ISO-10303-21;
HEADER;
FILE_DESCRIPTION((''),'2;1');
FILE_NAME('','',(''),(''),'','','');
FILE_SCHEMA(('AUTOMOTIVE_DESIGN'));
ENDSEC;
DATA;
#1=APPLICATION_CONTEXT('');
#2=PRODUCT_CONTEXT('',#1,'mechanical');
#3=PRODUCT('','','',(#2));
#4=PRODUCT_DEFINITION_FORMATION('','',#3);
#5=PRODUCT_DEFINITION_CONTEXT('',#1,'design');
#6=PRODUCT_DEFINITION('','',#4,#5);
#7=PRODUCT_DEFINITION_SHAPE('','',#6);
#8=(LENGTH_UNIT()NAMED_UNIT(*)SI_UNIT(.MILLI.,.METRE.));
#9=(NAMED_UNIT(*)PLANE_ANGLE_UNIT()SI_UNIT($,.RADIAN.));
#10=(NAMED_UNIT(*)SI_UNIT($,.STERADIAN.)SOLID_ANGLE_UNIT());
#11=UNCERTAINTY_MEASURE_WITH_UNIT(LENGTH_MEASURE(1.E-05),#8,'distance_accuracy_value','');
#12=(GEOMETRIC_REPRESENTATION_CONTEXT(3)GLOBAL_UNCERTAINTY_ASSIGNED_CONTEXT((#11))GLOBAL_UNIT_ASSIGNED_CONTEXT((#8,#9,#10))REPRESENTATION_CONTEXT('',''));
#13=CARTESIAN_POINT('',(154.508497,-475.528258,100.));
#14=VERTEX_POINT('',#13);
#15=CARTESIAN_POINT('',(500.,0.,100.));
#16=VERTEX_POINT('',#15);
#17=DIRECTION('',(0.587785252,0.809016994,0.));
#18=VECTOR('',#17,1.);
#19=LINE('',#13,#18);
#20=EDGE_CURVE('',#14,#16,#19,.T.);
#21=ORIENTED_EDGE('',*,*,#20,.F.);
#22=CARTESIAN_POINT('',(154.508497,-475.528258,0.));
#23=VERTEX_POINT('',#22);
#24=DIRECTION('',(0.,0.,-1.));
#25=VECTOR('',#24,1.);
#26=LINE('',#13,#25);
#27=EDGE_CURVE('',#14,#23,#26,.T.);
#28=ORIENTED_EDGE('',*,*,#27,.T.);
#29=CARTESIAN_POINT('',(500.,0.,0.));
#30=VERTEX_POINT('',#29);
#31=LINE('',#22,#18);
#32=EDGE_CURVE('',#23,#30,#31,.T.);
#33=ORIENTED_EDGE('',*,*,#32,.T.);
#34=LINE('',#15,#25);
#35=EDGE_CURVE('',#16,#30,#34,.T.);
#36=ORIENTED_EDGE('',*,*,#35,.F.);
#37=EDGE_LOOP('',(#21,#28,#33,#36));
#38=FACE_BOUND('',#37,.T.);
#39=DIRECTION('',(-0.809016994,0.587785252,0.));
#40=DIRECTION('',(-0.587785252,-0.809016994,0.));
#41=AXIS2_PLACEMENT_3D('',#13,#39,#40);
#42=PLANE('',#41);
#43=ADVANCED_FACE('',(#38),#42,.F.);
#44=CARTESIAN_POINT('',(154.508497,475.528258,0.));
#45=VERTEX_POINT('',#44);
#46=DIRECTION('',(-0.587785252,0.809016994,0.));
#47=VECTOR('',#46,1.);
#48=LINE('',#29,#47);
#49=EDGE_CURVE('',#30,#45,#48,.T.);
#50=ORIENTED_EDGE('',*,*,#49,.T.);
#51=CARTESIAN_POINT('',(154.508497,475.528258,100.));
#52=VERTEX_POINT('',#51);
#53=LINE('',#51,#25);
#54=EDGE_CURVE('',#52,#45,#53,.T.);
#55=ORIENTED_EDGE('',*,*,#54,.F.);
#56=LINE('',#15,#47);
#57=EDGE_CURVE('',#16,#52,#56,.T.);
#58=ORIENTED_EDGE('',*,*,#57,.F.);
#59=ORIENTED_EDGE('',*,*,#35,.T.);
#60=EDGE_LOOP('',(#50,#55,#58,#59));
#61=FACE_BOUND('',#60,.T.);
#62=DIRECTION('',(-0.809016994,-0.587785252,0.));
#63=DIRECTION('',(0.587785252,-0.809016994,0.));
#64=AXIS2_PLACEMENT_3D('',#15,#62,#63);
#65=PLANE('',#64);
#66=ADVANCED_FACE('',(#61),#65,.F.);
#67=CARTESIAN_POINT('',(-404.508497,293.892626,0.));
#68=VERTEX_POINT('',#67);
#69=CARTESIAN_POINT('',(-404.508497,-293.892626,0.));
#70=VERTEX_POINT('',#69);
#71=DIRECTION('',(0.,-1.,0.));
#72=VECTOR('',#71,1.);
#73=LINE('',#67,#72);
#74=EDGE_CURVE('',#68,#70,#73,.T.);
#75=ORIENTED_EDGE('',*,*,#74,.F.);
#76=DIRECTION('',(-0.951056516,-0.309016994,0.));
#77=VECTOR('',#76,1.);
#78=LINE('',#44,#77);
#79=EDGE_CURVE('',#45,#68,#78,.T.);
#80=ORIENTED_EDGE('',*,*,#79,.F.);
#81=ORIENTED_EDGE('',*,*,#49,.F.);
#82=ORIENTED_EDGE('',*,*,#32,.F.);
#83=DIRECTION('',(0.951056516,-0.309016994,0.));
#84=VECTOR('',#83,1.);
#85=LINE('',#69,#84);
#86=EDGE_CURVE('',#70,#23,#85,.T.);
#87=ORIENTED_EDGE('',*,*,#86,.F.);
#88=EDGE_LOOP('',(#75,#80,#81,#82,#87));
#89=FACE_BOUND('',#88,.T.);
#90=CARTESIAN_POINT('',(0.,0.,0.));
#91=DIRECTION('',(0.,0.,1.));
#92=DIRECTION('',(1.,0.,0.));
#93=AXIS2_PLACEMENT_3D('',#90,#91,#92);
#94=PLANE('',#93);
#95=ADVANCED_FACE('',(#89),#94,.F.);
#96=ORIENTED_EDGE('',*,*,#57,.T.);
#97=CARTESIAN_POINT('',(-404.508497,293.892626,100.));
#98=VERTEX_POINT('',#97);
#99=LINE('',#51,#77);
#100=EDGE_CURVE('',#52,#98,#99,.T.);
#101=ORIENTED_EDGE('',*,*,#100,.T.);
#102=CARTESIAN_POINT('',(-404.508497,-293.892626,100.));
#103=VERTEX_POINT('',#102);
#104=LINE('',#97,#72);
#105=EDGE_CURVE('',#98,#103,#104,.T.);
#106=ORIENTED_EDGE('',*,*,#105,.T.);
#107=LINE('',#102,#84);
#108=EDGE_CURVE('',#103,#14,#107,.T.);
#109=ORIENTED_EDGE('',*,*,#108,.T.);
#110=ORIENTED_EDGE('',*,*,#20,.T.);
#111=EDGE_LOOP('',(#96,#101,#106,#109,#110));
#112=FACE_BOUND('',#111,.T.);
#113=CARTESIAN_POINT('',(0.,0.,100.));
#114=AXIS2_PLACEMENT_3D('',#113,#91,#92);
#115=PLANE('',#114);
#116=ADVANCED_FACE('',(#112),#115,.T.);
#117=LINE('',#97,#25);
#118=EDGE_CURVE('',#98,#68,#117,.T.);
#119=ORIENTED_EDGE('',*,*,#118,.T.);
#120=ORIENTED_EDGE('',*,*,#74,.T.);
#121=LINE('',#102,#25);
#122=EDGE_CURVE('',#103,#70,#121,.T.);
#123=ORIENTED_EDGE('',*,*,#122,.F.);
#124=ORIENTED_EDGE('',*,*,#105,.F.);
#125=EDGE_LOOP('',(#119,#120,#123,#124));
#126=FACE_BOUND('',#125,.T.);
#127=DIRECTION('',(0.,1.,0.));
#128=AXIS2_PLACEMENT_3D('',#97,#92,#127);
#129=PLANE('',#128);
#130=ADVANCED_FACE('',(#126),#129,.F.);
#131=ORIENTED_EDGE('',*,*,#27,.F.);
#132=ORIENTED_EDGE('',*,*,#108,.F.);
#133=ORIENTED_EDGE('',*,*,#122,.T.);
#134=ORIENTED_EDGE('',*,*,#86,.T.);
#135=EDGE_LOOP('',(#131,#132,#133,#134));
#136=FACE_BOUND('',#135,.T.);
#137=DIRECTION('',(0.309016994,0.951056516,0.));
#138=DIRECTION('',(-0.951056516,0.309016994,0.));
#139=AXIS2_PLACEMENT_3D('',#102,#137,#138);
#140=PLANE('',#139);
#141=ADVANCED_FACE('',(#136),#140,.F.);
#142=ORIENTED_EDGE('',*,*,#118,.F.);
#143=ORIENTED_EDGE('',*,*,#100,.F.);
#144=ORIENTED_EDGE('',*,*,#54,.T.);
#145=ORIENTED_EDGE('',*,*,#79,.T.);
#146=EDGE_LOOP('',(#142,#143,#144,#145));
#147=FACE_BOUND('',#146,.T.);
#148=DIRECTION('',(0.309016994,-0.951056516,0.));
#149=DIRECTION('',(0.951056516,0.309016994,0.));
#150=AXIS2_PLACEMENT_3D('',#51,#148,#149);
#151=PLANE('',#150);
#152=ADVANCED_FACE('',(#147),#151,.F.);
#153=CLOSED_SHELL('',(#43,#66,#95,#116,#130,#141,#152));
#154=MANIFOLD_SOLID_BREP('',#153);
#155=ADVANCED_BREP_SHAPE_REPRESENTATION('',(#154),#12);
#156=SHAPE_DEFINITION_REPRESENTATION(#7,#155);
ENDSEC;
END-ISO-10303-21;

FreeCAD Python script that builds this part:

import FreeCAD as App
import Part
import Sketcher

V = App.Vector
Q = App.Units.Quantity


def add_polygon(sketch, points):
    """Adds a closed chain of lines whose ends are joined by coincident constraints."""
    first, n = sketch.GeometryCount, len(points)
    for a, b in zip(points, points[1:] + points[:1]):
        sketch.addGeometry(Part.LineSegment(App.Vector(*a, 0), App.Vector(*b, 0)), False)
    for i in range(n):
        sketch.addConstraint(Sketcher.Constraint("Coincident", first + i, 2, first + (i + 1) % n, 1))

doc = App.newDocument("Part")
params = doc.addObject("Spreadsheet::Sheet", "Params")
for row, (alias, value) in enumerate([
    ("pad1_length", "100 mm"),
], start=1):
    params.set(f"A{row}", alias)
    params.set(f"B{row}", "=" + value)
    params.setAlias(f"B{row}", alias)

body = doc.addObject("PartDesign::Body", "Body")

# Sketch on XY plane
sketch1 = body.newObject("Sketcher::SketchObject", "Sketch")
sketch1.AttachmentSupport = (doc.getObject("XY_Plane"), [""])
sketch1.MapMode = "FlatFace"
add_polygon(sketch1, [(500, 0), (155, 476), (-405, 294), (-405, -294), (155, -476)])  # lines 0-4
sketch1.addConstraint(Sketcher.Constraint("Vertical", 2))
sketch1.addConstraint(Sketcher.Constraint("Symmetric", 0, 2, 3, 2, -1))
sketch1.addConstraint(Sketcher.Constraint("PointOnObject", 4, 2, -1))
sketch1.addConstraint(Sketcher.Constraint("Equal", 0, 1))
sketch1.addConstraint(Sketcher.Constraint("Equal", 1, 3))
sketch1.addConstraint(Sketcher.Constraint("Angle", 0, Q("126 deg")))
sketch1.addConstraint(Sketcher.Constraint("Angle", 1, Q("-162 deg")))
sketch1.addConstraint(Sketcher.Constraint("DistanceX", -1, 1, 4, 2, Q("500 mm")))
sketch1.addConstraint(Sketcher.Constraint("DistanceY", 2, 2, 2, 1, Q("587.785252 mm")))
pad1 = body.newObject("PartDesign::Pad", "Pad")
pad1.Profile = sketch1
pad1.setExpression("Length", "Params.pad1_length")

doc.recompute()
